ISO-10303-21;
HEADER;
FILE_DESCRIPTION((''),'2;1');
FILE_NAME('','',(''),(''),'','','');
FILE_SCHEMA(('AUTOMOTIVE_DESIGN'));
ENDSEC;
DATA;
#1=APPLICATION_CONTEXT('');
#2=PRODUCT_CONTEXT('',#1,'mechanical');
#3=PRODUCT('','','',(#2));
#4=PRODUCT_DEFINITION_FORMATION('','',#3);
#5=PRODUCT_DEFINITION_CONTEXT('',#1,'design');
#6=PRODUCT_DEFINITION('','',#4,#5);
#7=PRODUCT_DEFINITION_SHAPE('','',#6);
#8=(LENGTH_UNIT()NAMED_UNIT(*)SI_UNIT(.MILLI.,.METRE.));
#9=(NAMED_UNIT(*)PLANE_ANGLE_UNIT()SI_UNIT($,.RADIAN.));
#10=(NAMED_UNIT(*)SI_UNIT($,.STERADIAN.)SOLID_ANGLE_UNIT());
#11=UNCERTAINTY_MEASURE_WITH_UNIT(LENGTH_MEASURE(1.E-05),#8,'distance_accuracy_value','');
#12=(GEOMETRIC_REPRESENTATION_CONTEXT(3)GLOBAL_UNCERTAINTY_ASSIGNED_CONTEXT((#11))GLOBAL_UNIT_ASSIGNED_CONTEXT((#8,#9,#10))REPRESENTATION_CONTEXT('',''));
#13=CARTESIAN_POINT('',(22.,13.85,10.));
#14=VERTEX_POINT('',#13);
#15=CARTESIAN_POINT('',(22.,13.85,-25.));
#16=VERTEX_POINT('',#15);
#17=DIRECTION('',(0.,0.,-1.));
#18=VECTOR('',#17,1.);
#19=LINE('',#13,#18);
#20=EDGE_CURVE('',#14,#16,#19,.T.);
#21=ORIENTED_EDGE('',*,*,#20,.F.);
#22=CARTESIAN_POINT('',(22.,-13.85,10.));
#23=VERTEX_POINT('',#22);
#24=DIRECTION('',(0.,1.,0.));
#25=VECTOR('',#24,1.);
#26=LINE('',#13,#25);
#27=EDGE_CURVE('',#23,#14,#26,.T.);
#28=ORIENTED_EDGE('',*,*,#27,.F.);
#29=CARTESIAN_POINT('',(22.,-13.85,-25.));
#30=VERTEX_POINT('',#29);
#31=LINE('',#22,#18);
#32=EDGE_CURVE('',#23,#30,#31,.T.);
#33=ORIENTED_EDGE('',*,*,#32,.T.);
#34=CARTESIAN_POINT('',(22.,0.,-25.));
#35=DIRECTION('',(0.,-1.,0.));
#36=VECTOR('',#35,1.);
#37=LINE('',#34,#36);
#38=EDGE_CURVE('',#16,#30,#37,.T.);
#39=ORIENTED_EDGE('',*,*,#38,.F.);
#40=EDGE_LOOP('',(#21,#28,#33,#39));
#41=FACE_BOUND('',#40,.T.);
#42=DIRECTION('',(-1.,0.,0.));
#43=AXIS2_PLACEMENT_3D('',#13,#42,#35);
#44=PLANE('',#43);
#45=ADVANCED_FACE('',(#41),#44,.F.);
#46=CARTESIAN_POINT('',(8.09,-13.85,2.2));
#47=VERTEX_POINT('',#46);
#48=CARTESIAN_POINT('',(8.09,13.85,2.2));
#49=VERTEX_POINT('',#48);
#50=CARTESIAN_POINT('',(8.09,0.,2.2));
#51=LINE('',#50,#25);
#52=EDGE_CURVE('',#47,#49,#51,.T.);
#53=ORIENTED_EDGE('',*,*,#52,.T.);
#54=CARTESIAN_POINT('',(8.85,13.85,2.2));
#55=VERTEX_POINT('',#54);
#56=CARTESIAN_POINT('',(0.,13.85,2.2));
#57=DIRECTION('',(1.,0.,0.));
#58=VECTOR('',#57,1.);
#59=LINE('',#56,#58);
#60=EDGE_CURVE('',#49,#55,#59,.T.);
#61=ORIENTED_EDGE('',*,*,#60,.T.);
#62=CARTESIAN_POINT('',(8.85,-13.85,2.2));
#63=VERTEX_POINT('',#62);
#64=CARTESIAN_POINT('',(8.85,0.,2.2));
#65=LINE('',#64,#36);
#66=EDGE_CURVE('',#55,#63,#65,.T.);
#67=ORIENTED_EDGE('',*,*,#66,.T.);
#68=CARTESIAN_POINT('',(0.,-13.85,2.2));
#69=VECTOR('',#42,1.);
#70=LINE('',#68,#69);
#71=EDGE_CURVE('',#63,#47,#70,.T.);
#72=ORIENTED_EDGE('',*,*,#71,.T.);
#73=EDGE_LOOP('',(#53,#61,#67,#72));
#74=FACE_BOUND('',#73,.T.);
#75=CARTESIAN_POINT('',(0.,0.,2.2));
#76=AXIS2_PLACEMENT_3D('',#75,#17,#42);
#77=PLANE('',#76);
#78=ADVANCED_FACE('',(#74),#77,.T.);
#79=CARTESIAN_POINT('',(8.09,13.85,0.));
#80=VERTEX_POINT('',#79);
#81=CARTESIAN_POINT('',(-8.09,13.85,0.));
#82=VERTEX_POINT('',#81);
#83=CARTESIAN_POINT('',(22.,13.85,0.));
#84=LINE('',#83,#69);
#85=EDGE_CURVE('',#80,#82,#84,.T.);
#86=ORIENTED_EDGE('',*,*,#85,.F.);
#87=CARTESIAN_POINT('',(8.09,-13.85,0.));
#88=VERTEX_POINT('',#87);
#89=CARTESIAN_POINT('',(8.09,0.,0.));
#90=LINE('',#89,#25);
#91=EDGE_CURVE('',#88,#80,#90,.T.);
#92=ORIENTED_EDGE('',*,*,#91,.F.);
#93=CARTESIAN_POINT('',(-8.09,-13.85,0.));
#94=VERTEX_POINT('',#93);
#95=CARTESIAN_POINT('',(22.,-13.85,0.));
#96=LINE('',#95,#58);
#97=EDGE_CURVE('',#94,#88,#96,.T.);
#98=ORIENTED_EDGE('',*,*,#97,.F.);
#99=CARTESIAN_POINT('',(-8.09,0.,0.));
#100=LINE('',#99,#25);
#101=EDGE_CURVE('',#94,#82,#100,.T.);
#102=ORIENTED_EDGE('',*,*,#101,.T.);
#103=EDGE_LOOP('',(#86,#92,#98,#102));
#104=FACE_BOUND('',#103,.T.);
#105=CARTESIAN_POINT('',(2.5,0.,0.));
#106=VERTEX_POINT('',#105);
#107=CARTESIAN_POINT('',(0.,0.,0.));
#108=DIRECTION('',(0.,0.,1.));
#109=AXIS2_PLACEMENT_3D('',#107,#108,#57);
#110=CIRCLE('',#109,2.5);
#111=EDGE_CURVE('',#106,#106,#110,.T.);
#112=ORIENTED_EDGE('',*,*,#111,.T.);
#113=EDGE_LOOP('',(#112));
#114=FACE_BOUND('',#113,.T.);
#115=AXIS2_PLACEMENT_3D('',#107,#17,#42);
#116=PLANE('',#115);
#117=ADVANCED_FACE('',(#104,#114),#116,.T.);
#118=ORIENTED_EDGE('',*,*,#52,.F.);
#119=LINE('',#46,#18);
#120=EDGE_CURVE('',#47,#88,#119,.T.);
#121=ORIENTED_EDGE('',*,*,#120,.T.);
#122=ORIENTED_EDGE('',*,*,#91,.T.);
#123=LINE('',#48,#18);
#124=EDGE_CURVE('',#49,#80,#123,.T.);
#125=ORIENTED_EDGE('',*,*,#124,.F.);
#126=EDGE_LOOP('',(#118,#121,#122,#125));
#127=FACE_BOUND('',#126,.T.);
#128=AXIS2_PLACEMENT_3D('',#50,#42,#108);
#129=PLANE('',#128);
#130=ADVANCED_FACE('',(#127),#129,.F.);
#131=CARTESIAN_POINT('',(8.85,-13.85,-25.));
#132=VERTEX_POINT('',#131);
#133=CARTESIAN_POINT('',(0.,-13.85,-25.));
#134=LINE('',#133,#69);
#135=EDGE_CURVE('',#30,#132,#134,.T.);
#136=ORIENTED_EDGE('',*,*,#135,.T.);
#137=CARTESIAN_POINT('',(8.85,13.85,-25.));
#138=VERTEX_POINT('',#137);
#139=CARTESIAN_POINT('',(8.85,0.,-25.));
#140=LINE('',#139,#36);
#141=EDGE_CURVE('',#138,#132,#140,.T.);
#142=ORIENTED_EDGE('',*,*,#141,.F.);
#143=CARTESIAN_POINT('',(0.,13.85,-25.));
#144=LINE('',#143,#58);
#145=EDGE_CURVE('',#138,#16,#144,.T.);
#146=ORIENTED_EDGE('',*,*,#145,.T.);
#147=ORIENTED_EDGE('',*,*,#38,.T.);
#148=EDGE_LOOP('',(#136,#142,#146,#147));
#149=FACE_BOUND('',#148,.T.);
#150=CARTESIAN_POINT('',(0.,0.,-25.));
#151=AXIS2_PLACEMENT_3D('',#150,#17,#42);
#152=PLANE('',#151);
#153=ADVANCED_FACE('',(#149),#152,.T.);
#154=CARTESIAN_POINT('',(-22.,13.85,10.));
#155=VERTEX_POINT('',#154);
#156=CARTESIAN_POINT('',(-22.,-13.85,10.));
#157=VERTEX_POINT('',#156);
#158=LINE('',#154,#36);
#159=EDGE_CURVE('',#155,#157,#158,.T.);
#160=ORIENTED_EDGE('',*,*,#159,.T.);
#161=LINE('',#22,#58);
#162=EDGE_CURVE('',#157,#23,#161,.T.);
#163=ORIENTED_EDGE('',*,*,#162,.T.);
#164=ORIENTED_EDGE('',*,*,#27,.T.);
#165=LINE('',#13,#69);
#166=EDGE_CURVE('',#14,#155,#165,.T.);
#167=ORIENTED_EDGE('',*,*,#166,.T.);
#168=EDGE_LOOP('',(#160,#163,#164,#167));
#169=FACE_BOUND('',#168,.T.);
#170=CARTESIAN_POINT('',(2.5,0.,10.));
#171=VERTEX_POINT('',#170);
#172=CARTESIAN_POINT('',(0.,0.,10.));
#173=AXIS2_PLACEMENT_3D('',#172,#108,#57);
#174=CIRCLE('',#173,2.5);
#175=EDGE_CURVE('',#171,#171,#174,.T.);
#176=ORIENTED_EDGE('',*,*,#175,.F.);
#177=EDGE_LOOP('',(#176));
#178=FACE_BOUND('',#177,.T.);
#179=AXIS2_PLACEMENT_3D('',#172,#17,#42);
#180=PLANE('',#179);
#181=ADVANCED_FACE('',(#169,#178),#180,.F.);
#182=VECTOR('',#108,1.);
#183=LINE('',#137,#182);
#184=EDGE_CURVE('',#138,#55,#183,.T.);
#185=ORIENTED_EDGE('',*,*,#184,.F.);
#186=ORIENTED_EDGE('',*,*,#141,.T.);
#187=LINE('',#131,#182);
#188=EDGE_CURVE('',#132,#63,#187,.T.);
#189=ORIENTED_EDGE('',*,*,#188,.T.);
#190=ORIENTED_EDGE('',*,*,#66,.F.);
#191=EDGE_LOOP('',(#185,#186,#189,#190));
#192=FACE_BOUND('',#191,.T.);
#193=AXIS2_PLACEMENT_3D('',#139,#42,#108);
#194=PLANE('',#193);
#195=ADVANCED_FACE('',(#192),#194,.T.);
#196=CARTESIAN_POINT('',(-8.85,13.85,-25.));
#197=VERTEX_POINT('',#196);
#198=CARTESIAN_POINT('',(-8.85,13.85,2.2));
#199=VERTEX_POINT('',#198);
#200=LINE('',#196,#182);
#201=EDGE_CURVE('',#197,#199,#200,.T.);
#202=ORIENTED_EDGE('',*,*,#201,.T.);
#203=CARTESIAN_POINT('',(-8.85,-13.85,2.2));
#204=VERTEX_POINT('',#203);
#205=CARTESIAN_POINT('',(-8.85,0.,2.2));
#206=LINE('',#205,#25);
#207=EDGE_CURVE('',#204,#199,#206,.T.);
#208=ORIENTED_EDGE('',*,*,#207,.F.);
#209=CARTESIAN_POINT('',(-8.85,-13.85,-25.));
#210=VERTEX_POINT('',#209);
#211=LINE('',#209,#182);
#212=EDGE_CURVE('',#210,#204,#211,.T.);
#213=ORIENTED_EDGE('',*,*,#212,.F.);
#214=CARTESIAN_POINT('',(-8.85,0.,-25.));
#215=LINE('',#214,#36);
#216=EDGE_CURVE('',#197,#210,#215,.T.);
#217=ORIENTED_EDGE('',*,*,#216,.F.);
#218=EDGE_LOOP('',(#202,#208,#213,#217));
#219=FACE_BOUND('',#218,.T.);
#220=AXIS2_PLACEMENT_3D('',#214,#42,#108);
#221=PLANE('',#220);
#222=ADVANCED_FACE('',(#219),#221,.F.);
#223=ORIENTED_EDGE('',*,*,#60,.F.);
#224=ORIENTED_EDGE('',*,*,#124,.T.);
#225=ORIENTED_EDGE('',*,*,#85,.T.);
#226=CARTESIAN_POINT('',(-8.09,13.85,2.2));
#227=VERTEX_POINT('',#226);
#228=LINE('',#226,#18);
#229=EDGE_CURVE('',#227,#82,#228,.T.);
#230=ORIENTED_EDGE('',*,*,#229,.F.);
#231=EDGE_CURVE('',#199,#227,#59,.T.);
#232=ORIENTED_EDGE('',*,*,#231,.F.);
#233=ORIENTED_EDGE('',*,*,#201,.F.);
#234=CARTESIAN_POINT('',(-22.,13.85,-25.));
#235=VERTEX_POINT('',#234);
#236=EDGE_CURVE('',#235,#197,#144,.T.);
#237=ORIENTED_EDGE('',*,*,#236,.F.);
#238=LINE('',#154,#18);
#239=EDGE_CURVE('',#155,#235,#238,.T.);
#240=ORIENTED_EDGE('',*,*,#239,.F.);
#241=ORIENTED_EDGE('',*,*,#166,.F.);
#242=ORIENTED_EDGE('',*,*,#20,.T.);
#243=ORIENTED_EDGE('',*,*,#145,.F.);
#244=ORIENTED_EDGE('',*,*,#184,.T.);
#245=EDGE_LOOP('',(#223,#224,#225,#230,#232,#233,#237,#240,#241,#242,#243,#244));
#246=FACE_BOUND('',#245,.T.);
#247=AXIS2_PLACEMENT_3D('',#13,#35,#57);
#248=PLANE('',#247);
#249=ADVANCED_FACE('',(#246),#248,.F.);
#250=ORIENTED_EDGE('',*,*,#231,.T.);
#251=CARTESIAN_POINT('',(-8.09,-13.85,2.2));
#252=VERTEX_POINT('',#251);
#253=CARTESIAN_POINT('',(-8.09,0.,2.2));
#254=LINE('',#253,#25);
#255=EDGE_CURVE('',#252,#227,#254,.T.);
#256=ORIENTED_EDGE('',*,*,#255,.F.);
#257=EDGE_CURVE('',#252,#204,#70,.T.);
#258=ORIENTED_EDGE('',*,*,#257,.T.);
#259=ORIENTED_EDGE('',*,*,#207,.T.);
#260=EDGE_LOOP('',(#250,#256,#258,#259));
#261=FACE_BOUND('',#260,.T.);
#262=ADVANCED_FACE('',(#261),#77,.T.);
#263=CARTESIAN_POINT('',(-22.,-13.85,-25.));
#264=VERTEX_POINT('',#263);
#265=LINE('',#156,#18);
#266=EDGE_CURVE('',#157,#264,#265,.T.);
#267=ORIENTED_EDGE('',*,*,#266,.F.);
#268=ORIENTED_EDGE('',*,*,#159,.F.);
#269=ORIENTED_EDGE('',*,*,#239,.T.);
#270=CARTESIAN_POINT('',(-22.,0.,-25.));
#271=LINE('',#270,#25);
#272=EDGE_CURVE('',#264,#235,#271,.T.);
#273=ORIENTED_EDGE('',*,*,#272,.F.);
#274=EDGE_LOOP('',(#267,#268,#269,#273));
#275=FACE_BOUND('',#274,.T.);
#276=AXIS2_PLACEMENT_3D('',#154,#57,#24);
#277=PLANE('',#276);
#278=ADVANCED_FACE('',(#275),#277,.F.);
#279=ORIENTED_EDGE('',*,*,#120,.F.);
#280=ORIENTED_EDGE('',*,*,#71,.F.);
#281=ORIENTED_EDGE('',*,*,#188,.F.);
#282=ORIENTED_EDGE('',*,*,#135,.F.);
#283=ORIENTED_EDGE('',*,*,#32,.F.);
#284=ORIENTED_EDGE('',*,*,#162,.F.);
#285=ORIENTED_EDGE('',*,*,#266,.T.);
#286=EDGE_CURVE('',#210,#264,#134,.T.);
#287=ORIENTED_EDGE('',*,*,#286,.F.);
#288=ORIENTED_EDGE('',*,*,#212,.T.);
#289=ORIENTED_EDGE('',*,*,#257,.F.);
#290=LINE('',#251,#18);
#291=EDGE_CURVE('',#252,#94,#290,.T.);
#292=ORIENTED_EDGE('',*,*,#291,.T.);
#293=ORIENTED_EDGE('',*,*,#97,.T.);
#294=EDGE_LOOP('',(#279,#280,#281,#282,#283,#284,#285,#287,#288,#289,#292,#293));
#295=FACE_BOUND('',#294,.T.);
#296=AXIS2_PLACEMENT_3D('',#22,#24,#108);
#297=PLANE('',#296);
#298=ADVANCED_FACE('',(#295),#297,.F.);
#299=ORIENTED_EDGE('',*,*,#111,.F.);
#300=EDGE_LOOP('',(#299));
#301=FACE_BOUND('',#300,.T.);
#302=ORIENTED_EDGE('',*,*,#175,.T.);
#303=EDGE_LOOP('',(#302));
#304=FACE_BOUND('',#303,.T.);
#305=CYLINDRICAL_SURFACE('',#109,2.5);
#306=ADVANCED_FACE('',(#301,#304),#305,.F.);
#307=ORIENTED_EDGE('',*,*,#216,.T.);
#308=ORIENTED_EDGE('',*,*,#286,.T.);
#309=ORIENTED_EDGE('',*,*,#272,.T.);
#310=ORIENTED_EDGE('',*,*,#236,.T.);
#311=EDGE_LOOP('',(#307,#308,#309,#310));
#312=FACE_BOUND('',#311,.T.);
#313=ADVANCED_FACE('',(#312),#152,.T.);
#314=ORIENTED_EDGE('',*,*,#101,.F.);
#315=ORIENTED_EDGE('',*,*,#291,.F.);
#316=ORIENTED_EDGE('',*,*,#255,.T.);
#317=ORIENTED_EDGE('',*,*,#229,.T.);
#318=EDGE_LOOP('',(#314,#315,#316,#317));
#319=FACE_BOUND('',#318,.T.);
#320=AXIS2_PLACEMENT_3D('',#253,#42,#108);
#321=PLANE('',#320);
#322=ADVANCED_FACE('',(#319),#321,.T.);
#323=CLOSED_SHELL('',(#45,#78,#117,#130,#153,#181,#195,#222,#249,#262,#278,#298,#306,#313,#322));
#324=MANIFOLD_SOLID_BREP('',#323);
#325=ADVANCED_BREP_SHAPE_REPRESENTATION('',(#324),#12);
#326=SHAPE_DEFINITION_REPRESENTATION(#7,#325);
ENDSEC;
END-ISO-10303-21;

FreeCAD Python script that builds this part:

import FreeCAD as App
import Part
import Sketcher
Q = App.Units.Quantity

doc = App.newDocument("Part")
body = doc.addObject("PartDesign::Body", "Body")

sketch1 = body.newObject("Sketcher::SketchObject", "Sketch")
sketch1.AttachmentSupport = (doc.getObject("XY_Plane"), [""])
sketch1.MapMode = "FlatFace"
sketch1.addGeometry(Part.LineSegment(App.Vector(-22, 14, 0), App.Vector(-22, -14, 0)), False)
sketch1.addGeometry(Part.LineSegment(App.Vector(-22, -14, 0), App.Vector(22, -14, 0)), False)
sketch1.addGeometry(Part.LineSegment(App.Vector(22, -14, 0), App.Vector(22, 14, 0)), False)
sketch1.addGeometry(Part.LineSegment(App.Vector(22, 14, 0), App.Vector(-22, 14, 0)), False)
sketch1.addConstraint(Sketcher.Constraint("Coincident", 0, 2, 1, 1))
sketch1.addConstraint(Sketcher.Constraint("Coincident", 1, 2, 2, 1))
sketch1.addConstraint(Sketcher.Constraint("Coincident", 2, 2, 3, 1))
sketch1.addConstraint(Sketcher.Constraint("Coincident", 3, 2, 0, 1))
sketch1.addConstraint(Sketcher.Constraint("Vertical", 0))
sketch1.addConstraint(Sketcher.Constraint("Horizontal", 1))
sketch1.addConstraint(Sketcher.Constraint("Vertical", 2))
sketch1.addConstraint(Sketcher.Constraint("Horizontal", 3))
sketch1.addConstraint(Sketcher.Constraint("Symmetric", 0, 2, 2, 2, -1, 1))
sketch1.addConstraint(Sketcher.Constraint("DistanceX", 1, 1, 1, 2, Q("44 mm")))
sketch1.addConstraint(Sketcher.Constraint("DistanceY", 0, 2, 0, 1, Q("27.7 mm")))
pad1 = body.newObject("PartDesign::Pad", "Pad")
pad1.Profile = sketch1
pad1.Length = 10

sketch2 = body.newObject("Sketcher::SketchObject", "Sketch001")
sketch2.AttachmentSupport = (doc.getObject("XY_Plane"), [""])
sketch2.MapMode = "FlatFace"
sketch2.addGeometry(Part.LineSegment(App.Vector(22, 14, 0), App.Vector(22, -14, 0)), False)
sketch2.addGeometry(Part.LineSegment(App.Vector(22, -14, 0), App.Vector(9, -14, 0)), False)
sketch2.addGeometry(Part.LineSegment(App.Vector(9, -14, 0), App.Vector(9, 14, 0)), False)
sketch2.addGeometry(Part.LineSegment(App.Vector(9, 14, 0), App.Vector(22, 14, 0)), False)
sketch2.addGeometry(Part.LineSegment(App.Vector(-9, 14, 0), App.Vector(-9, -14, 0)), False)
sketch2.addGeometry(Part.LineSegment(App.Vector(-9, -14, 0), App.Vector(-22, -14, 0)), False)
sketch2.addGeometry(Part.LineSegment(App.Vector(-22, -14, 0), App.Vector(-22, 14, 0)), False)
sketch2.addGeometry(Part.LineSegment(App.Vector(-22, 14, 0), App.Vector(-9, 14, 0)), False)
sketch2.addConstraint(Sketcher.Constraint("Coincident", 0, 2, 1, 1))
sketch2.addConstraint(Sketcher.Constraint("Coincident", 1, 2, 2, 1))
sketch2.addConstraint(Sketcher.Constraint("Coincident", 2, 2, 3, 1))
sketch2.addConstraint(Sketcher.Constraint("Coincident", 3, 2, 0, 1))
sketch2.addConstraint(Sketcher.Constraint("Coincident", 4, 2, 5, 1))
sketch2.addConstraint(Sketcher.Constraint("Coincident", 5, 2, 6, 1))
sketch2.addConstraint(Sketcher.Constraint("Coincident", 6, 2, 7, 1))
sketch2.addConstraint(Sketcher.Constraint("Coincident", 7, 2, 4, 1))
sketch2.addConstraint(Sketcher.Constraint("Vertical", 0))
sketch2.addConstraint(Sketcher.Constraint("Horizontal", 1))
sketch2.addConstraint(Sketcher.Constraint("Vertical", 2))
sketch2.addConstraint(Sketcher.Constraint("Horizontal", 3))
sketch2.addConstraint(Sketcher.Constraint("Vertical", 4))
sketch2.addConstraint(Sketcher.Constraint("Horizontal", 5))
sketch2.addConstraint(Sketcher.Constraint("Vertical", 6))
sketch2.addConstraint(Sketcher.Constraint("Horizontal", 7))
sketch2.addConstraint(Sketcher.Constraint("Symmetric", 2, 2, 4, 2, -1, 1))
sketch2.addConstraint(Sketcher.Constraint("Symmetric", 0, 2, 6, 2, -1, 1))
sketch2.addConstraint(Sketcher.Constraint("Horizontal", 1, 2, 4, 2))
sketch2.addConstraint(Sketcher.Constraint("DistanceY", 0, 2, 0, 1, Q("27.7 mm")))
sketch2.addConstraint(Sketcher.Constraint("DistanceX", -1, 1, 0, 2, Q("22 mm")))
sketch2.addConstraint(Sketcher.Constraint("DistanceX", 1, 2, 1, 1, Q("13.15 mm")))
pad2 = body.newObject("PartDesign::Pad", "Pad001")
pad2.Profile = sketch2
pad2.Length = 25
pad2.Reversed = True

sketch3 = body.newObject("Sketcher::SketchObject", "Sketch002")
sketch3.AttachmentSupport = (doc.getObject("XY_Plane"), [""])
sketch3.MapMode = "FlatFace"
sketch3.AttachmentOffset = App.Placement(App.Vector(0, 0, 10), App.Rotation())
sketch3.addGeometry(Part.Circle(App.Vector(0, 0, 0), App.Vector(0, 0, 1), 2.5), False)
sketch3.addConstraint(Sketcher.Constraint("Coincident", 0, 3, -1, 1))
sketch3.addConstraint(Sketcher.Constraint("Diameter", 0, Q("5 mm")))
pocket1 = body.newObject("PartDesign::Pocket", "Pocket")
pocket1.Profile = sketch3
pocket1.Length = 10

sketch4 = body.newObject("Sketcher::SketchObject", "Sketch003")
sketch4.AttachmentSupport = (doc.getObject("XY_Plane"), [""])
sketch4.MapMode = "FlatFace"
sketch4.addGeometry(Part.LineSegment(App.Vector(8.8, 13.8, 0), App.Vector(8.8, -13.8, 0)), False)
sketch4.addGeometry(Part.LineSegment(App.Vector(8.8, -13.8, 0), App.Vector(8.1, -13.8, 0)), False)
sketch4.addGeometry(Part.LineSegment(App.Vector(8.1, -13.8, 0), App.Vector(8.1, 13.8, 0)), False)
sketch4.addGeometry(Part.LineSegment(App.Vector(8.1, 13.8, 0), App.Vector(8.8, 13.8, 0)), False)
sketch4.addGeometry(Part.LineSegment(App.Vector(-8.1, 13.8, 0), App.Vector(-8.1, -13.8, 0)), False)
sketch4.addGeometry(Part.LineSegment(App.Vector(-8.1, -13.8, 0), App.Vector(-8.8, -13.8, 0)), False)
sketch4.addGeometry(Part.LineSegment(App.Vector(-8.8, -13.8, 0), App.Vector(-8.8, 13.8, 0)), False)
sketch4.addGeometry(Part.LineSegment(App.Vector(-8.8, 13.8, 0), App.Vector(-8.1, 13.8, 0)), False)
sketch4.addConstraint(Sketcher.Constraint("Coincident", 0, 2, 1, 1))
sketch4.addConstraint(Sketcher.Constraint("Coincident", 1, 2, 2, 1))
sketch4.addConstraint(Sketcher.Constraint("Coincident", 2, 2, 3, 1))
sketch4.addConstraint(Sketcher.Constraint("Coincident", 3, 2, 0, 1))
sketch4.addConstraint(Sketcher.Constraint("Coincident", 4, 2, 5, 1))
sketch4.addConstraint(Sketcher.Constraint("Coincident", 5, 2, 6, 1))
sketch4.addConstraint(Sketcher.Constraint("Coincident", 6, 2, 7, 1))
sketch4.addConstraint(Sketcher.Constraint("Coincident", 7, 2, 4, 1))
sketch4.addConstraint(Sketcher.Constraint("Vertical", 0))
sketch4.addConstraint(Sketcher.Constraint("Horizontal", 1))
sketch4.addConstraint(Sketcher.Constraint("Vertical", 2))
sketch4.addConstraint(Sketcher.Constraint("Horizontal", 3))
sketch4.addConstraint(Sketcher.Constraint("Vertical", 4))
sketch4.addConstraint(Sketcher.Constraint("Horizontal", 5))
sketch4.addConstraint(Sketcher.Constraint("Vertical", 6))
sketch4.addConstraint(Sketcher.Constraint("Horizontal", 7))
sketch4.addConstraint(Sketcher.Constraint("Symmetric", 2, 2, 4, 2, -1, 1))
sketch4.addConstraint(Sketcher.Constraint("Symmetric", 0, 2, 6, 2, -1, 1))
sketch4.addConstraint(Sketcher.Constraint("Horizontal", 1, 2, 4, 2))
sketch4.addConstraint(Sketcher.Constraint("DistanceY", 0, 2, 0, 1, Q("27.7 mm")))
sketch4.addConstraint(Sketcher.Constraint("DistanceX", 1, 2, 1, 1, Q("0.76 mm")))
sketch4.addConstraint(Sketcher.Constraint("DistanceX", 5, 2, 0, 2, Q("17.7 mm")))
pocket2 = body.newObject("PartDesign::Pocket", "Pocket001")
pocket2.Profile = sketch4
pocket2.Length = 2.2
pocket2.Reversed = True

doc.recompute()
